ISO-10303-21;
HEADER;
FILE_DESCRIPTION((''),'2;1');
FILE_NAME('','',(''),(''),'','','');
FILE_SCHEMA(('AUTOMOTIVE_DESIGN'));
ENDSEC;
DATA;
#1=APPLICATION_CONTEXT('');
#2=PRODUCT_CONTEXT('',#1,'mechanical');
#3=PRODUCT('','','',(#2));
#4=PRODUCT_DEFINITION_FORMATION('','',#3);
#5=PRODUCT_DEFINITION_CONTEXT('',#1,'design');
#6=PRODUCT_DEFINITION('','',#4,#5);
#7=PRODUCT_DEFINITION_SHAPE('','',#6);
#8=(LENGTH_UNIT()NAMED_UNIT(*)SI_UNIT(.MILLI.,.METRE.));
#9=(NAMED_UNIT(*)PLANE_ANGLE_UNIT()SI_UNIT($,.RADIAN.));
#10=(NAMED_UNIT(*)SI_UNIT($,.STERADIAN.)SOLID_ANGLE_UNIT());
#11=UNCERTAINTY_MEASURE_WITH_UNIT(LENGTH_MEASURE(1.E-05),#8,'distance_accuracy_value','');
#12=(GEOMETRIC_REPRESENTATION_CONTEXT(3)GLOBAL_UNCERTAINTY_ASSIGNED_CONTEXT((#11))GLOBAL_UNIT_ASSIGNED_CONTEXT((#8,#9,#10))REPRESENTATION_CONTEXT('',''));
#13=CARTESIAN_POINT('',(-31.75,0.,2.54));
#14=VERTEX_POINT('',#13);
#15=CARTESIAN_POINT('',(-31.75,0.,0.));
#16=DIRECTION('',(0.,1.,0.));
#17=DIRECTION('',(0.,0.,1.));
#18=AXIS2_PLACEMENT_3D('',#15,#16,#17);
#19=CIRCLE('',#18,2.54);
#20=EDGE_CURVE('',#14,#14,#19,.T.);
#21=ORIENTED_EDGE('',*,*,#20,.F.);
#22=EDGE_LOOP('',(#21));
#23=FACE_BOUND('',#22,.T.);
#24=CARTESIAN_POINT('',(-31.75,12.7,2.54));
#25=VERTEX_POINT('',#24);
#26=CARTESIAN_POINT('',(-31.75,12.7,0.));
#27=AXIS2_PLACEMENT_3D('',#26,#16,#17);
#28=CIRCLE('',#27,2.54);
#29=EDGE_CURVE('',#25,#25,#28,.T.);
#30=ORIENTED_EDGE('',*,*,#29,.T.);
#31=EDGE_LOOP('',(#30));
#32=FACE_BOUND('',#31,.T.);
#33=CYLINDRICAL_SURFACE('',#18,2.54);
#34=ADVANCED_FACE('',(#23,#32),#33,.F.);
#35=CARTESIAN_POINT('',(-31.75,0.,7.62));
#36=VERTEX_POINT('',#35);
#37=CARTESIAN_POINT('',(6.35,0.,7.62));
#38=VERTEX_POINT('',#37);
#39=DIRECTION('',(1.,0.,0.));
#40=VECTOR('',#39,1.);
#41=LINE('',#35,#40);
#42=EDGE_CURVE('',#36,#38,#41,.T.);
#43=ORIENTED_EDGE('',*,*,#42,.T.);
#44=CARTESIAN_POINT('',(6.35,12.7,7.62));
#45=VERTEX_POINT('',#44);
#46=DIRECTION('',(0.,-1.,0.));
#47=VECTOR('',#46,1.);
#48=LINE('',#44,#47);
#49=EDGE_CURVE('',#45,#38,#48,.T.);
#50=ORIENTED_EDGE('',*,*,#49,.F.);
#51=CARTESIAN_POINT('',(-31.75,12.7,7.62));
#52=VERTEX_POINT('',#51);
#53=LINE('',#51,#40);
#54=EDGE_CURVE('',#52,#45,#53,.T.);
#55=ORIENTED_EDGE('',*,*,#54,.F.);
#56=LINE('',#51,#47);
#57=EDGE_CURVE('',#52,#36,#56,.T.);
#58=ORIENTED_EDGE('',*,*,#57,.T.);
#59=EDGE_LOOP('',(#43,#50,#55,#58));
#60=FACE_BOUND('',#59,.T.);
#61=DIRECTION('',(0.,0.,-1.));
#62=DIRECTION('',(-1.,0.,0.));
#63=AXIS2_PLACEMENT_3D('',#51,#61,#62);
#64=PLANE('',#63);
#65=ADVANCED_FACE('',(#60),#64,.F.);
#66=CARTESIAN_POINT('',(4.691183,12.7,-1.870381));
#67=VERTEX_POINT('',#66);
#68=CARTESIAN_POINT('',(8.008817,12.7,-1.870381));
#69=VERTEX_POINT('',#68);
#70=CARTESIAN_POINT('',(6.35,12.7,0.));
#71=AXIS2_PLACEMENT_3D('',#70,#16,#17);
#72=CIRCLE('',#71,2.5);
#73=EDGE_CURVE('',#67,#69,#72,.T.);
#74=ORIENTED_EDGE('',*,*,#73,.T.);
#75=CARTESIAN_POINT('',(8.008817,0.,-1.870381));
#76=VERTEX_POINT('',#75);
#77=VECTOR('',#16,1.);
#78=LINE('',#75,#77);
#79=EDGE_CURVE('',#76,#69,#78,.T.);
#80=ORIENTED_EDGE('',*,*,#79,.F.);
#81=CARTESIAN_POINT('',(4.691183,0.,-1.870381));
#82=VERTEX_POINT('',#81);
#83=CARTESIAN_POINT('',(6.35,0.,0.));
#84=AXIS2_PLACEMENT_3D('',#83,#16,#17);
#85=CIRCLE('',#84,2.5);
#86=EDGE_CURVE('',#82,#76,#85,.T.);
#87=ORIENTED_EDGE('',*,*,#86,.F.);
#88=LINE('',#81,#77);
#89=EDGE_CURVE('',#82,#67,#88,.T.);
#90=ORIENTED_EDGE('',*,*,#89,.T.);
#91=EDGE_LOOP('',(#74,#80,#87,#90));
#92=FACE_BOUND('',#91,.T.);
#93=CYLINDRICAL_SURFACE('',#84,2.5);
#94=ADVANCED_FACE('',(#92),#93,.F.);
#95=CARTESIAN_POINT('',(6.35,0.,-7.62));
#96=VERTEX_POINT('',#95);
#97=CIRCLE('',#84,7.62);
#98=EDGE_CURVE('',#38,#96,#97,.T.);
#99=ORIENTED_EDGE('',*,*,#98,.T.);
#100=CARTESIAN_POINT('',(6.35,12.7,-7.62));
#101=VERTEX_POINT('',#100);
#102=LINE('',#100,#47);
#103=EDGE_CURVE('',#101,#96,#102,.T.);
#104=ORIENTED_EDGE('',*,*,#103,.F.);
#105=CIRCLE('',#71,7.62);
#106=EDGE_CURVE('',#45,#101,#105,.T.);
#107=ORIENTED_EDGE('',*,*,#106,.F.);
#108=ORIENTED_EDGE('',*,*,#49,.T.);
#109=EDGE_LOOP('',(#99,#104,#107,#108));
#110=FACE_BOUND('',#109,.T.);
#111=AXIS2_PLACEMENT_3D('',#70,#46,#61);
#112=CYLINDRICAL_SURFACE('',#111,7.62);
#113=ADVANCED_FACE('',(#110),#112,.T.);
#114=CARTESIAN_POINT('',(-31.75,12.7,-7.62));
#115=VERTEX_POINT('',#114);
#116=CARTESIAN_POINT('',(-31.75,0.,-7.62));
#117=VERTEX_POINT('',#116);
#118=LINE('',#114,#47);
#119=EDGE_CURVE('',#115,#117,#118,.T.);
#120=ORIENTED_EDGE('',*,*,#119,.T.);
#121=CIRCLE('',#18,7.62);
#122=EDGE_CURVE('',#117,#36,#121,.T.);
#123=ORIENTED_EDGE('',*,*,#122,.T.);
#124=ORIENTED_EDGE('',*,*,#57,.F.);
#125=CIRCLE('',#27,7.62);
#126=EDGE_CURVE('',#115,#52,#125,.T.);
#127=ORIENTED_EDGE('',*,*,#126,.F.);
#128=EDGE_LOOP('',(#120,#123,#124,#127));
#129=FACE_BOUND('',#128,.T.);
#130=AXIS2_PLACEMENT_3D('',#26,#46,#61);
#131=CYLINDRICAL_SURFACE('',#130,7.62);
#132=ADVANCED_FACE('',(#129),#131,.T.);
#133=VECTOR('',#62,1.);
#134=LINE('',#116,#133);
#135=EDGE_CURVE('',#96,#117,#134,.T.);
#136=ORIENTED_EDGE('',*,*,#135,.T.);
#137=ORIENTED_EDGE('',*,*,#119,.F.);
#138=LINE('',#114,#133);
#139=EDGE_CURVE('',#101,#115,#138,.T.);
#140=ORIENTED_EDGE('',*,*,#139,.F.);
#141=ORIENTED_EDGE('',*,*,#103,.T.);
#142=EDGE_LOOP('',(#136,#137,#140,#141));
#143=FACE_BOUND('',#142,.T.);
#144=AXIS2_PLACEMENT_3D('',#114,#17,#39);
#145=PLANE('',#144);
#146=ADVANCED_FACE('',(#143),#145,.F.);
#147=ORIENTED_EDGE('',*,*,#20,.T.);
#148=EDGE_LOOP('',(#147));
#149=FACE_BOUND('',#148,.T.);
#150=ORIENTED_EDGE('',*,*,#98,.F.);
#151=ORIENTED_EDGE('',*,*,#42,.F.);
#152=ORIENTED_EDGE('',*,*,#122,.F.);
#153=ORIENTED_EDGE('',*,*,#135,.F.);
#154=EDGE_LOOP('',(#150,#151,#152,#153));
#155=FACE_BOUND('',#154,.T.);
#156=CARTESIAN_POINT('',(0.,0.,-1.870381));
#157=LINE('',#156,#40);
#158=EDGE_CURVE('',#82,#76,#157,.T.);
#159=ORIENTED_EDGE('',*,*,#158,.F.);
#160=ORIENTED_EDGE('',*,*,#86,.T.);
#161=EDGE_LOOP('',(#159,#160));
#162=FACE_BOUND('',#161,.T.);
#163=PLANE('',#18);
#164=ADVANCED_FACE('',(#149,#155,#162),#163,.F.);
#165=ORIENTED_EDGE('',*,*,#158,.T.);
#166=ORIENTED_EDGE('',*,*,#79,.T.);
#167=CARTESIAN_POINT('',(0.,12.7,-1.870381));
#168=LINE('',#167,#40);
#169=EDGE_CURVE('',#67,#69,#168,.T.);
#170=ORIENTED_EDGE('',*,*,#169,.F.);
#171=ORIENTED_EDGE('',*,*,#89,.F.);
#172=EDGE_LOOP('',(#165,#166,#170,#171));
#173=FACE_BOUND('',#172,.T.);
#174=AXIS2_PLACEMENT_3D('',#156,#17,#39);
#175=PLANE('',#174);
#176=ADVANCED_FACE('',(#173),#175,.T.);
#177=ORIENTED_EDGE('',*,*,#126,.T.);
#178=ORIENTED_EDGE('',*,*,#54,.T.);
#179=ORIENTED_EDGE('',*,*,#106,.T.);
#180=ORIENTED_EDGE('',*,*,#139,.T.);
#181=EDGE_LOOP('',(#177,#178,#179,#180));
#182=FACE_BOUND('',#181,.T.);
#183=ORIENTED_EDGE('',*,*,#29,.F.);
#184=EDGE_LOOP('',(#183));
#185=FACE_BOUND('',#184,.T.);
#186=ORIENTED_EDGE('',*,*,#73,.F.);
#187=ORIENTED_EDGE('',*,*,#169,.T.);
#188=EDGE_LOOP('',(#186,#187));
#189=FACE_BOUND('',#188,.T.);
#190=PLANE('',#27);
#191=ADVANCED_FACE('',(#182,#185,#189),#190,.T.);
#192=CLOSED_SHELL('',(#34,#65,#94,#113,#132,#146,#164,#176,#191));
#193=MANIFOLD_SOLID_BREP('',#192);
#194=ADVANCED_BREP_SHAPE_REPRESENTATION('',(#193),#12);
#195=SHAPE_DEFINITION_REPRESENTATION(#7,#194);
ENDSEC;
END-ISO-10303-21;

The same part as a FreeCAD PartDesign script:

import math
import FreeCAD as App
import Part
import Sketcher

V = App.Vector
Q = App.Units.Quantity

doc = App.newDocument("Part")
body = doc.addObject("PartDesign::Body", "Body")

sketch1 = body.newObject("Sketcher::SketchObject", "Sketch")
sketch1.AttachmentSupport = (doc.getObject("XZ_Plane"), [""])
sketch1.MapMode = "FlatFace"
sketch1.addGeometry([
    Part.LineSegment(V(6.35, -7.62, 0), V(-31.75, -7.62, 0)),
    Part.ArcOfCircle(Part.Circle(V(-31.75, 0, 0), V(0, 0, 1), 7.62), math.radians(90), math.radians(270)),
    Part.LineSegment(V(-31.75, 7.62, 0), V(6.35, 7.62, 0)),
    Part.ArcOfCircle(Part.Circle(V(6.35, 0, 0), V(0, 0, 1), 7.62), math.radians(-90), math.radians(90)),
], False)
sketch1.addConstraint([
    Sketcher.Constraint("Tangent", 0, 2, 1, 2),
    Sketcher.Constraint("Tangent", 1, 1, 2, 1),
    Sketcher.Constraint("Tangent", 2, 2, 3, 2),
    Sketcher.Constraint("Tangent", 3, 1, 0, 1),
    Sketcher.Constraint("Horizontal", 0),
    Sketcher.Constraint("Horizontal", 2),
    Sketcher.Constraint("PointOnObject", 1, 3, -1),
    Sketcher.Constraint("Radius", 1, Q("0.3 in")),
    Sketcher.Constraint("DistanceX", 0, 2, 0, 1, Q("1.5 in")),
    Sketcher.Constraint("DistanceX", 1, 3, -1, 1, Q("1.25 in")),
])
pad1 = body.newObject("PartDesign::Pad", "Pad")
pad1.Profile = sketch1
pad1.Length = Q("0.5 in")
pad1.Reversed = True

sketch2 = body.newObject("Sketcher::SketchObject", "Sketch001")
sketch2.AttachmentSupport = (doc.getObject("XZ_Plane"), [""])
sketch2.MapMode = "FlatFace"
sketch2.AttachmentOffset = App.Placement(V(0, 0, -0.5 * 25.4), App.Rotation())
sketch2.addGeometry(Part.Circle(V(-31.75, 0, 0), V(0, 0, 1), 2.54), False)
sketch2.addConstraint([
    Sketcher.Constraint("PointOnObject", 0, 3, -1),
    Sketcher.Constraint("Diameter", 0, Q("0.2 in")),
    Sketcher.Constraint("DistanceX", 0, 3, -1, 1, Q("1.25 in")),
])
pocket1 = body.newObject("PartDesign::Pocket", "Pocket")
pocket1.Profile = sketch2
pocket1.Type = "ThroughAll"
pocket1.Reversed = True

sketch3 = body.newObject("Sketcher::SketchObject", "Sketch002")
sketch3.AttachmentSupport = (doc.getObject("XZ_Plane"), [""])
sketch3.MapMode = "FlatFace"
sketch3.AttachmentOffset = App.Placement(V(0, 0, -0.5 * 25.4), App.Rotation())
sketch3.addGeometry([
    Part.LineSegment(V(8.008817, -1.870381, 0), V(4.691183, -1.870381, 0)),
    Part.ArcOfCircle(Part.Circle(V(6.35, 0, 0), V(0, 0, 1), 2.5), math.radians(0), math.radians(228.43058)),
    Part.ArcOfCircle(Part.Circle(V(6.35, 0, 0), V(0, 0, 1), 2.5), math.radians(-48.43058), math.radians(0)),
], False)
sketch3.addConstraint([
    Sketcher.Constraint("Coincident", 0, 2, 1, 2),
    Sketcher.Constraint("Tangent", 1, 1, 2, 2),
    Sketcher.Constraint("Coincident", 2, 1, 0, 1),
    Sketcher.Constraint("Horizontal", 0),
    Sketcher.Constraint("Equal", 1, 2),
    Sketcher.Constraint("PointOnObject", 1, 3, -1),
    Sketcher.Constraint("PointOnObject", 1, 1, -1),
    Sketcher.Constraint("DistanceX", -1, 1, 1, 3, Q("0.25 in")),
    Sketcher.Constraint("Radius", 1, Q("2.5 mm")),
    Sketcher.Constraint("DistanceX", 0, 2, 0, 1, Q("3.317635 mm")),
])
pocket2 = body.newObject("PartDesign::Pocket", "Pocket001")
pocket2.Profile = sketch3
pocket2.Type = "ThroughAll"
pocket2.Reversed = True

doc.recompute()
